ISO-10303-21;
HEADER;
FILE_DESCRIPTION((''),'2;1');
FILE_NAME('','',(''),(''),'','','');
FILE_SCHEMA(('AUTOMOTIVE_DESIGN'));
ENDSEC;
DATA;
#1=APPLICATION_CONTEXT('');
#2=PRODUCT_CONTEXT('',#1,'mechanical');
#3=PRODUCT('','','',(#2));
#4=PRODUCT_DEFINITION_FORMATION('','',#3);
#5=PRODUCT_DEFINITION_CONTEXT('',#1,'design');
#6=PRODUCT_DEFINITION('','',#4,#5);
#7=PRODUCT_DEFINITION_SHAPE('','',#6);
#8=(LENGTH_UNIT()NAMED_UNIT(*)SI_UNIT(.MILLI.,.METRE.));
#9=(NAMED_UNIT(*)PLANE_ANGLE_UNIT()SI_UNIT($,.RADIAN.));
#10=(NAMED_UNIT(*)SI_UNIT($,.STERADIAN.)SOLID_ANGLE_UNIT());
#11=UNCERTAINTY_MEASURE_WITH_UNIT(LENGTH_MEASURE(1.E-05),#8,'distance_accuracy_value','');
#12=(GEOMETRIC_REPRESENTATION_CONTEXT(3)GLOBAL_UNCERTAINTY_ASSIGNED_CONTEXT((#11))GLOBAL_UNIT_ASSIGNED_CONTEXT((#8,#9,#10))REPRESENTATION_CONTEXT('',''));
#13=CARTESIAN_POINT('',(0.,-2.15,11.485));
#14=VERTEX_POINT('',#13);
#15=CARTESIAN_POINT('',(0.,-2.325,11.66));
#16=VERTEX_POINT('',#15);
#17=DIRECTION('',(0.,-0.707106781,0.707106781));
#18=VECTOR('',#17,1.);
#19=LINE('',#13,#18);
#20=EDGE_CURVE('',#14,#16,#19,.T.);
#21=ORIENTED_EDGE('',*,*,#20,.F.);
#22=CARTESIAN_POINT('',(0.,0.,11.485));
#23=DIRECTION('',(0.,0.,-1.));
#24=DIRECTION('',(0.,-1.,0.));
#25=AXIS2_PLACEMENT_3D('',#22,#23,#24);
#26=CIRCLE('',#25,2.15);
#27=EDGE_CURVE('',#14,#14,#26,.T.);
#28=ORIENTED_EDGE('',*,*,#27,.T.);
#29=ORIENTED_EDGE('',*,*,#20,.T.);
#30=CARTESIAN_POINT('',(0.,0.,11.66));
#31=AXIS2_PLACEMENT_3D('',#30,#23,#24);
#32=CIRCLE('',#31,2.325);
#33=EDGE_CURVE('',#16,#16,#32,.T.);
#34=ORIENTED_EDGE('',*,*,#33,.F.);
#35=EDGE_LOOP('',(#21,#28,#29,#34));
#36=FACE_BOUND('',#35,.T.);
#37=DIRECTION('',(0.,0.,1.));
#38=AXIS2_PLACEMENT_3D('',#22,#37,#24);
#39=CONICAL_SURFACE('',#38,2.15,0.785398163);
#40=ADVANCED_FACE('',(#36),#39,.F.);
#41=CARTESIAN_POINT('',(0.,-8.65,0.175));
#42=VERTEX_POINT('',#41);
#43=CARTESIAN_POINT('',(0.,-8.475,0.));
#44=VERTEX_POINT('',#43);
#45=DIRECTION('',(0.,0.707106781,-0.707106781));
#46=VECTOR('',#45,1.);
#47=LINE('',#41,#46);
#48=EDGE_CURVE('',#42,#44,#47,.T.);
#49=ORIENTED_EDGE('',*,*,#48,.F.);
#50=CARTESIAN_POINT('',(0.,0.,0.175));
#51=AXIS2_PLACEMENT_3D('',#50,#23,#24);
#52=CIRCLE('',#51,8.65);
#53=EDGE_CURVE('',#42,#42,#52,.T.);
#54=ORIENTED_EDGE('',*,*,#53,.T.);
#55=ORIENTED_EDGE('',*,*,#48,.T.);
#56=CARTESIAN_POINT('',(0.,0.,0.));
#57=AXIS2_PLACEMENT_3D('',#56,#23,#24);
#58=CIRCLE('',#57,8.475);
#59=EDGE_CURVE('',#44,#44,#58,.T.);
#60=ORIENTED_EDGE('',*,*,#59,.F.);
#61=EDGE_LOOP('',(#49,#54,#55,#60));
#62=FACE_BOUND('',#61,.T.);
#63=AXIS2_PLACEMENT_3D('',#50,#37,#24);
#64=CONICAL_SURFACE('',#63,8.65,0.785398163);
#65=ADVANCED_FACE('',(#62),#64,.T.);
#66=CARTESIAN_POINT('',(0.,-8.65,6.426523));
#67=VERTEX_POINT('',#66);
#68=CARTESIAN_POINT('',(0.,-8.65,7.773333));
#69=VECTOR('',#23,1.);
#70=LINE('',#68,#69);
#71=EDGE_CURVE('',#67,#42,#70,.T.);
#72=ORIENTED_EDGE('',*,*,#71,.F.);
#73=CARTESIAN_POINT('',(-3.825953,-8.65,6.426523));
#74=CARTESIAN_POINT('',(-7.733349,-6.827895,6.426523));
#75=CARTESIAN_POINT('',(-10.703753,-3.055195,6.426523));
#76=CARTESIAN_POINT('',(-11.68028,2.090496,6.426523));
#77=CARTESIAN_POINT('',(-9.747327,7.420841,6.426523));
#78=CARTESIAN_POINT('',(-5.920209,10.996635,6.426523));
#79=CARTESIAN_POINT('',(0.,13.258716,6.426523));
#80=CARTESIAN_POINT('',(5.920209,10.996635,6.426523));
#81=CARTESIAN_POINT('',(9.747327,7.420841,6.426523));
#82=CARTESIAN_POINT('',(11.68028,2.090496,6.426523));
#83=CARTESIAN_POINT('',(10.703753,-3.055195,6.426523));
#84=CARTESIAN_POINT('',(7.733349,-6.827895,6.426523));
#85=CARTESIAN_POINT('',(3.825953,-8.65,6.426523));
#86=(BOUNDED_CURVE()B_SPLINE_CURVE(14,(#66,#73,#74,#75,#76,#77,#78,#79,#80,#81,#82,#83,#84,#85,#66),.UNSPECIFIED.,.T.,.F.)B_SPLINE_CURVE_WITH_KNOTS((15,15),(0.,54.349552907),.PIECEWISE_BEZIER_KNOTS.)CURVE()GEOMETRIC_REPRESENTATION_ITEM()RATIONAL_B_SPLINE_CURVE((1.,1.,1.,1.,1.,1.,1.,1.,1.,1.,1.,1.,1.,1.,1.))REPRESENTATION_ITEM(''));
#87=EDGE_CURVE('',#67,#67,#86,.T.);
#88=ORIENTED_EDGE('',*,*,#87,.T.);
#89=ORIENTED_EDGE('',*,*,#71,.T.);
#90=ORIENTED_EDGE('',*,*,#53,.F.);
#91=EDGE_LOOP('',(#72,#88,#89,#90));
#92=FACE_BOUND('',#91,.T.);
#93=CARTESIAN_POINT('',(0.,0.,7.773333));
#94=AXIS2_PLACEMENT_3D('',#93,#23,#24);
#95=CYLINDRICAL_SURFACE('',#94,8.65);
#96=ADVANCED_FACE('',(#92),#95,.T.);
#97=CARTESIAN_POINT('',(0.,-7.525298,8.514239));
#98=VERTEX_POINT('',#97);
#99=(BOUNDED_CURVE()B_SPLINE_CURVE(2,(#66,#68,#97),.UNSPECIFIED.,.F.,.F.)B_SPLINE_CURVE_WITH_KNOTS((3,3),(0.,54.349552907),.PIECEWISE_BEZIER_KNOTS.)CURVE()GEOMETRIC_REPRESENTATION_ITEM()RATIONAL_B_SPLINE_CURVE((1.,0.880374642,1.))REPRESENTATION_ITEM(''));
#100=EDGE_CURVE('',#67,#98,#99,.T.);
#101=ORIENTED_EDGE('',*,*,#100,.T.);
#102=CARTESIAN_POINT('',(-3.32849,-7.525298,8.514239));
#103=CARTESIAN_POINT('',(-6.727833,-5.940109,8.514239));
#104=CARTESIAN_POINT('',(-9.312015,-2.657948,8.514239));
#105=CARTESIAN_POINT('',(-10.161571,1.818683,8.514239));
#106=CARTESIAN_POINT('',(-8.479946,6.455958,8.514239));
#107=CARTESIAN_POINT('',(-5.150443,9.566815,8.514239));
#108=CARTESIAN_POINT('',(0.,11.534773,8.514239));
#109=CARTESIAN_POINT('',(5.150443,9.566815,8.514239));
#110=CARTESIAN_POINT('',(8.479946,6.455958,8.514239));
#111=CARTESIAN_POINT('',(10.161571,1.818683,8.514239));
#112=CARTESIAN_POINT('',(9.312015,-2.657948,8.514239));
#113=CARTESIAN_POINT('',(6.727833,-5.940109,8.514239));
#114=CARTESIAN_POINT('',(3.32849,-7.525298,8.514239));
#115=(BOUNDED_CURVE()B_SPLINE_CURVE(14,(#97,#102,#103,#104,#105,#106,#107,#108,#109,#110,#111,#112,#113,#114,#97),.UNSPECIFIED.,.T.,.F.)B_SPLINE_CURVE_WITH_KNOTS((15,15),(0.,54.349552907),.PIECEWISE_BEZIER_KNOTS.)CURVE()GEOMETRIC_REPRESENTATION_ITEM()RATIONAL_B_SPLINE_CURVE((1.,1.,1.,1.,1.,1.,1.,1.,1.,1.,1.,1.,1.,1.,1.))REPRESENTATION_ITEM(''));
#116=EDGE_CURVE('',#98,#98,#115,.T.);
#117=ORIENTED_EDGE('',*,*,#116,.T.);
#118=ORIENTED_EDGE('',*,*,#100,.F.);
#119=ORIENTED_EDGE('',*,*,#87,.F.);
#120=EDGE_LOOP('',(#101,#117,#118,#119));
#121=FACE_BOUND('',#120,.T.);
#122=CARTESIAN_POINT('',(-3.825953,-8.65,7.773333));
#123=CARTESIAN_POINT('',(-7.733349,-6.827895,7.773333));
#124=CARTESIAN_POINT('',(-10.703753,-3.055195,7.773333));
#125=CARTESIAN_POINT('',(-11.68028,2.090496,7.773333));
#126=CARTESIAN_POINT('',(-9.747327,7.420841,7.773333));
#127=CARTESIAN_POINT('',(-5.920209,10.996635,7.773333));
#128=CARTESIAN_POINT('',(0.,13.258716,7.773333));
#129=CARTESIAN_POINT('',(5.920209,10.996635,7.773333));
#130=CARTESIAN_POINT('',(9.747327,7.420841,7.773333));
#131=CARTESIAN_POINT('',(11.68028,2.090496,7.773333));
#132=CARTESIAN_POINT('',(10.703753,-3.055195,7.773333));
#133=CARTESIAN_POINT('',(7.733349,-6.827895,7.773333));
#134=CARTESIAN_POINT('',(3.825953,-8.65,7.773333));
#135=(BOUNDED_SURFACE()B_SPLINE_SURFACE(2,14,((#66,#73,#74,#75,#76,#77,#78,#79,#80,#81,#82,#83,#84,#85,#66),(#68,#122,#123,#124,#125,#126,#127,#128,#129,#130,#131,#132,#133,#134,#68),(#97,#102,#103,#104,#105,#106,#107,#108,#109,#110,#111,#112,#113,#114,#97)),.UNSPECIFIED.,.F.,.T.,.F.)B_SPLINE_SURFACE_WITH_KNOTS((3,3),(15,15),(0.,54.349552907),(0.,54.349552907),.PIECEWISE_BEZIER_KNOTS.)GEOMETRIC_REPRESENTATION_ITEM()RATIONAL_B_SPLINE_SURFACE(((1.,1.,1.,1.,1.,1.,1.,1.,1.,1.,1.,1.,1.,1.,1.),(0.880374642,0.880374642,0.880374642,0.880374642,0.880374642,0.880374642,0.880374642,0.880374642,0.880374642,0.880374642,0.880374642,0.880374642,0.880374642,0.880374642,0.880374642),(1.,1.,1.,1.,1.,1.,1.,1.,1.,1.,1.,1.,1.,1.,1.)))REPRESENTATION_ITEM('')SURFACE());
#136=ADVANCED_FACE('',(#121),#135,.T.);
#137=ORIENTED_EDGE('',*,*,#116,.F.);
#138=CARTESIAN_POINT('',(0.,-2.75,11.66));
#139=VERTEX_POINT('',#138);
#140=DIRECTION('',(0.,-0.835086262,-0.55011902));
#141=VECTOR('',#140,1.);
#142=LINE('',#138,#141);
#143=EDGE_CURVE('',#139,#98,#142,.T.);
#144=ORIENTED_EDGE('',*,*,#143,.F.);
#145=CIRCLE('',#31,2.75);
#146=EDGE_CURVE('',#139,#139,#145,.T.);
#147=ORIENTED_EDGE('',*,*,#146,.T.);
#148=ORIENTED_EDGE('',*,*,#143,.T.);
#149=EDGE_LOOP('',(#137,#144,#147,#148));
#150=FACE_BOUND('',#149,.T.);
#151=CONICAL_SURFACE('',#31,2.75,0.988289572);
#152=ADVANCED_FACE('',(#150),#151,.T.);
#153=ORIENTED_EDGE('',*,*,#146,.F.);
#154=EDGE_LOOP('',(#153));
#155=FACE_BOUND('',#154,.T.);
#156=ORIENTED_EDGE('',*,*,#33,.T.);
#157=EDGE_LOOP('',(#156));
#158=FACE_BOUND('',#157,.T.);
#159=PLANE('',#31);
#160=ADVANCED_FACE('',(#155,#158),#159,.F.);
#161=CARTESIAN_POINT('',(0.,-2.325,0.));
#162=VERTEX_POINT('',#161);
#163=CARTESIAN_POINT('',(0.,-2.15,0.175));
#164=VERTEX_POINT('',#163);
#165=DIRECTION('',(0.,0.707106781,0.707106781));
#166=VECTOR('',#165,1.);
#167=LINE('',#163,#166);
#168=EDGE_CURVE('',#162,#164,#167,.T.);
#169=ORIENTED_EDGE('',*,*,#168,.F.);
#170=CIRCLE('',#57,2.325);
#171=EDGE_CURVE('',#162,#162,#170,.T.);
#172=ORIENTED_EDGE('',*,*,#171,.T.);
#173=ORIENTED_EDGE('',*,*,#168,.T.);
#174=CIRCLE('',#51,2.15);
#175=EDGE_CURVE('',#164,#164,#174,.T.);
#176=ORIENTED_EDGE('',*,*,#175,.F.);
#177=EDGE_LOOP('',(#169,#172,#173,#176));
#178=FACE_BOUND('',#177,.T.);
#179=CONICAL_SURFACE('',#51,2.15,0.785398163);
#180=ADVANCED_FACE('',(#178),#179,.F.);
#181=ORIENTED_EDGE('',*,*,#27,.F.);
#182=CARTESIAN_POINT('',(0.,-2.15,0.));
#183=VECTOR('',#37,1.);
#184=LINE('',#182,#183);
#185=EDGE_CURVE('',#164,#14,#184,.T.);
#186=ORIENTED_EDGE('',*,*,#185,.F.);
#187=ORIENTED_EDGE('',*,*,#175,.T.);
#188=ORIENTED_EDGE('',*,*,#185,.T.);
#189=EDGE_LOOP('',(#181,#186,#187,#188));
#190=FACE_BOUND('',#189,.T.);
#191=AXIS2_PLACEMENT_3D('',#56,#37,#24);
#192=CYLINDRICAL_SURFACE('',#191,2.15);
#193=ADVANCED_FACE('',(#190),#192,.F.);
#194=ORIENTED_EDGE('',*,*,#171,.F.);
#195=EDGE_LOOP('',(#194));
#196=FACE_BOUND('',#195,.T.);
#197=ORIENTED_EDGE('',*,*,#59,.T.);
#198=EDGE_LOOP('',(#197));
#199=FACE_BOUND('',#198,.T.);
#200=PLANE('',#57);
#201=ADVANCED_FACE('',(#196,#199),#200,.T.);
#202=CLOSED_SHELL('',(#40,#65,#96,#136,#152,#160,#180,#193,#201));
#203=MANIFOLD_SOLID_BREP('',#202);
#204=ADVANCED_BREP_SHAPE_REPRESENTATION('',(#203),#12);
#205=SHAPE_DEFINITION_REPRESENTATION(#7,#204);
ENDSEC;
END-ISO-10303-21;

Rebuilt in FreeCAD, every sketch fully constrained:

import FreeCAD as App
import Part
import Sketcher
from FreeCAD import Vector
Q = App.Units.Quantity


def edges_at(feature, points):
    """Names of the edges that pass closest to the given points."""
    edges = feature.Shape.Edges
    near = lambda p: min(range(len(edges)), key=lambda i: edges[i].distToShape(Part.Vertex(*p))[0])
    return sorted({f"Edge{near(p) + 1}" for p in points})

doc = App.newDocument("Part")
params = doc.addObject("Spreadsheet::Sheet", "Params")
for row, (alias, value) in enumerate([
    ("sketch1_width", "6.5 mm"),
    ("sketch1_width2", "0.6 mm"),
    ("sketch1_height", "11.66 mm"),
    ("revolution_angle", "360 deg"),
    ("chamfer_size", "0.175 mm"),
    ("fillet_radius", "2.5 mm"),
], start=1):
    params.set(f"A{row}", alias)
    params.set(f"B{row}", "=" + value)
    params.setAlias(f"B{row}", alias)

body = doc.addObject("PartDesign::Body", "Body")

# Sketch on YZ plane
sketch1 = doc.addObject("Sketcher::SketchObject", "Sketch")
body.addObject(sketch1)
sketch1.AttachmentSupport = (doc.YZ_Plane, [""])
sketch1.MapMode = "FlatFace"
sketch1.addGeometry([
    Part.LineSegment(Vector(-8.7, 7.8, 0), Vector(-8.7, 0, 0)),  # 0
    Part.LineSegment(Vector(-8.7, 0, 0), Vector(-2.1, 0, 0)),  # 1
    Part.LineSegment(Vector(-2.1, 0, 0), Vector(-2.1, 11.7, 0)),  # 2
    Part.LineSegment(Vector(-2.1, 11.7, 0), Vector(-2.8, 11.7, 0)),  # 3
    Part.LineSegment(Vector(-2.8, 11.7, 0), Vector(-8.7, 7.8, 0)),  # 4
], False)
sketch1.addConstraint([
    Sketcher.Constraint("Coincident", 0, 2, 1, 1),
    Sketcher.Constraint("Coincident", 1, 2, 2, 1),
    Sketcher.Constraint("Coincident", 2, 2, 3, 1),
    Sketcher.Constraint("Coincident", 3, 2, 4, 1),
    Sketcher.Constraint("Coincident", 4, 2, 0, 1),
    Sketcher.Constraint("Vertical", 0),
    Sketcher.Constraint("Horizontal", 1),
    Sketcher.Constraint("Vertical", 2),
    Sketcher.Constraint("Horizontal", 3),
    Sketcher.Constraint("PointOnObject", 0, 2, -1),
    Sketcher.Constraint("DistanceX", 1, 1, 1, 2, Q("6.5 mm")),
    Sketcher.Constraint("DistanceX", 3, 2, 3, 1, Q("0.6 mm")),
    Sketcher.Constraint("DistanceY", 2, 1, 2, 2, Q("11.66 mm")),
    Sketcher.Constraint("DistanceX", 0, 2, -1, 1, Q("8.65 mm")),
    Sketcher.Constraint("Distance", 4, Q("7.065138 mm")),
])
sketch1.setExpression("Constraints[10]", "Params.sketch1_width")
sketch1.setExpression("Constraints[11]", "Params.sketch1_width2")
sketch1.setExpression("Constraints[12]", "Params.sketch1_height")
revolution = doc.addObject("PartDesign::Revolution", "Revolution")
body.addObject(revolution)
revolution.Profile = sketch1
revolution.ReferenceAxis = (sketch1, ["V_Axis"])
revolution.setExpression("Angle", "Params.revolution_angle")
doc.recompute()

chamfer = doc.addObject("PartDesign::Chamfer", "Chamfer")
body.addObject(chamfer)
chamfer.Base = (revolution, edges_at(revolution, [(0, 2.15, 11.66), (0, 8.65, 0), (0, 2.15, 0)]))
chamfer.setExpression("Size", "Params.chamfer_size")
doc.recompute()

fillet = doc.addObject("PartDesign::Fillet", "Fillet")
body.addObject(fillet)
fillet.Base = (chamfer, edges_at(chamfer, [(0, 8.65, 7.773)]))
fillet.setExpression("Radius", "Params.fillet_radius")

doc.recompute()
